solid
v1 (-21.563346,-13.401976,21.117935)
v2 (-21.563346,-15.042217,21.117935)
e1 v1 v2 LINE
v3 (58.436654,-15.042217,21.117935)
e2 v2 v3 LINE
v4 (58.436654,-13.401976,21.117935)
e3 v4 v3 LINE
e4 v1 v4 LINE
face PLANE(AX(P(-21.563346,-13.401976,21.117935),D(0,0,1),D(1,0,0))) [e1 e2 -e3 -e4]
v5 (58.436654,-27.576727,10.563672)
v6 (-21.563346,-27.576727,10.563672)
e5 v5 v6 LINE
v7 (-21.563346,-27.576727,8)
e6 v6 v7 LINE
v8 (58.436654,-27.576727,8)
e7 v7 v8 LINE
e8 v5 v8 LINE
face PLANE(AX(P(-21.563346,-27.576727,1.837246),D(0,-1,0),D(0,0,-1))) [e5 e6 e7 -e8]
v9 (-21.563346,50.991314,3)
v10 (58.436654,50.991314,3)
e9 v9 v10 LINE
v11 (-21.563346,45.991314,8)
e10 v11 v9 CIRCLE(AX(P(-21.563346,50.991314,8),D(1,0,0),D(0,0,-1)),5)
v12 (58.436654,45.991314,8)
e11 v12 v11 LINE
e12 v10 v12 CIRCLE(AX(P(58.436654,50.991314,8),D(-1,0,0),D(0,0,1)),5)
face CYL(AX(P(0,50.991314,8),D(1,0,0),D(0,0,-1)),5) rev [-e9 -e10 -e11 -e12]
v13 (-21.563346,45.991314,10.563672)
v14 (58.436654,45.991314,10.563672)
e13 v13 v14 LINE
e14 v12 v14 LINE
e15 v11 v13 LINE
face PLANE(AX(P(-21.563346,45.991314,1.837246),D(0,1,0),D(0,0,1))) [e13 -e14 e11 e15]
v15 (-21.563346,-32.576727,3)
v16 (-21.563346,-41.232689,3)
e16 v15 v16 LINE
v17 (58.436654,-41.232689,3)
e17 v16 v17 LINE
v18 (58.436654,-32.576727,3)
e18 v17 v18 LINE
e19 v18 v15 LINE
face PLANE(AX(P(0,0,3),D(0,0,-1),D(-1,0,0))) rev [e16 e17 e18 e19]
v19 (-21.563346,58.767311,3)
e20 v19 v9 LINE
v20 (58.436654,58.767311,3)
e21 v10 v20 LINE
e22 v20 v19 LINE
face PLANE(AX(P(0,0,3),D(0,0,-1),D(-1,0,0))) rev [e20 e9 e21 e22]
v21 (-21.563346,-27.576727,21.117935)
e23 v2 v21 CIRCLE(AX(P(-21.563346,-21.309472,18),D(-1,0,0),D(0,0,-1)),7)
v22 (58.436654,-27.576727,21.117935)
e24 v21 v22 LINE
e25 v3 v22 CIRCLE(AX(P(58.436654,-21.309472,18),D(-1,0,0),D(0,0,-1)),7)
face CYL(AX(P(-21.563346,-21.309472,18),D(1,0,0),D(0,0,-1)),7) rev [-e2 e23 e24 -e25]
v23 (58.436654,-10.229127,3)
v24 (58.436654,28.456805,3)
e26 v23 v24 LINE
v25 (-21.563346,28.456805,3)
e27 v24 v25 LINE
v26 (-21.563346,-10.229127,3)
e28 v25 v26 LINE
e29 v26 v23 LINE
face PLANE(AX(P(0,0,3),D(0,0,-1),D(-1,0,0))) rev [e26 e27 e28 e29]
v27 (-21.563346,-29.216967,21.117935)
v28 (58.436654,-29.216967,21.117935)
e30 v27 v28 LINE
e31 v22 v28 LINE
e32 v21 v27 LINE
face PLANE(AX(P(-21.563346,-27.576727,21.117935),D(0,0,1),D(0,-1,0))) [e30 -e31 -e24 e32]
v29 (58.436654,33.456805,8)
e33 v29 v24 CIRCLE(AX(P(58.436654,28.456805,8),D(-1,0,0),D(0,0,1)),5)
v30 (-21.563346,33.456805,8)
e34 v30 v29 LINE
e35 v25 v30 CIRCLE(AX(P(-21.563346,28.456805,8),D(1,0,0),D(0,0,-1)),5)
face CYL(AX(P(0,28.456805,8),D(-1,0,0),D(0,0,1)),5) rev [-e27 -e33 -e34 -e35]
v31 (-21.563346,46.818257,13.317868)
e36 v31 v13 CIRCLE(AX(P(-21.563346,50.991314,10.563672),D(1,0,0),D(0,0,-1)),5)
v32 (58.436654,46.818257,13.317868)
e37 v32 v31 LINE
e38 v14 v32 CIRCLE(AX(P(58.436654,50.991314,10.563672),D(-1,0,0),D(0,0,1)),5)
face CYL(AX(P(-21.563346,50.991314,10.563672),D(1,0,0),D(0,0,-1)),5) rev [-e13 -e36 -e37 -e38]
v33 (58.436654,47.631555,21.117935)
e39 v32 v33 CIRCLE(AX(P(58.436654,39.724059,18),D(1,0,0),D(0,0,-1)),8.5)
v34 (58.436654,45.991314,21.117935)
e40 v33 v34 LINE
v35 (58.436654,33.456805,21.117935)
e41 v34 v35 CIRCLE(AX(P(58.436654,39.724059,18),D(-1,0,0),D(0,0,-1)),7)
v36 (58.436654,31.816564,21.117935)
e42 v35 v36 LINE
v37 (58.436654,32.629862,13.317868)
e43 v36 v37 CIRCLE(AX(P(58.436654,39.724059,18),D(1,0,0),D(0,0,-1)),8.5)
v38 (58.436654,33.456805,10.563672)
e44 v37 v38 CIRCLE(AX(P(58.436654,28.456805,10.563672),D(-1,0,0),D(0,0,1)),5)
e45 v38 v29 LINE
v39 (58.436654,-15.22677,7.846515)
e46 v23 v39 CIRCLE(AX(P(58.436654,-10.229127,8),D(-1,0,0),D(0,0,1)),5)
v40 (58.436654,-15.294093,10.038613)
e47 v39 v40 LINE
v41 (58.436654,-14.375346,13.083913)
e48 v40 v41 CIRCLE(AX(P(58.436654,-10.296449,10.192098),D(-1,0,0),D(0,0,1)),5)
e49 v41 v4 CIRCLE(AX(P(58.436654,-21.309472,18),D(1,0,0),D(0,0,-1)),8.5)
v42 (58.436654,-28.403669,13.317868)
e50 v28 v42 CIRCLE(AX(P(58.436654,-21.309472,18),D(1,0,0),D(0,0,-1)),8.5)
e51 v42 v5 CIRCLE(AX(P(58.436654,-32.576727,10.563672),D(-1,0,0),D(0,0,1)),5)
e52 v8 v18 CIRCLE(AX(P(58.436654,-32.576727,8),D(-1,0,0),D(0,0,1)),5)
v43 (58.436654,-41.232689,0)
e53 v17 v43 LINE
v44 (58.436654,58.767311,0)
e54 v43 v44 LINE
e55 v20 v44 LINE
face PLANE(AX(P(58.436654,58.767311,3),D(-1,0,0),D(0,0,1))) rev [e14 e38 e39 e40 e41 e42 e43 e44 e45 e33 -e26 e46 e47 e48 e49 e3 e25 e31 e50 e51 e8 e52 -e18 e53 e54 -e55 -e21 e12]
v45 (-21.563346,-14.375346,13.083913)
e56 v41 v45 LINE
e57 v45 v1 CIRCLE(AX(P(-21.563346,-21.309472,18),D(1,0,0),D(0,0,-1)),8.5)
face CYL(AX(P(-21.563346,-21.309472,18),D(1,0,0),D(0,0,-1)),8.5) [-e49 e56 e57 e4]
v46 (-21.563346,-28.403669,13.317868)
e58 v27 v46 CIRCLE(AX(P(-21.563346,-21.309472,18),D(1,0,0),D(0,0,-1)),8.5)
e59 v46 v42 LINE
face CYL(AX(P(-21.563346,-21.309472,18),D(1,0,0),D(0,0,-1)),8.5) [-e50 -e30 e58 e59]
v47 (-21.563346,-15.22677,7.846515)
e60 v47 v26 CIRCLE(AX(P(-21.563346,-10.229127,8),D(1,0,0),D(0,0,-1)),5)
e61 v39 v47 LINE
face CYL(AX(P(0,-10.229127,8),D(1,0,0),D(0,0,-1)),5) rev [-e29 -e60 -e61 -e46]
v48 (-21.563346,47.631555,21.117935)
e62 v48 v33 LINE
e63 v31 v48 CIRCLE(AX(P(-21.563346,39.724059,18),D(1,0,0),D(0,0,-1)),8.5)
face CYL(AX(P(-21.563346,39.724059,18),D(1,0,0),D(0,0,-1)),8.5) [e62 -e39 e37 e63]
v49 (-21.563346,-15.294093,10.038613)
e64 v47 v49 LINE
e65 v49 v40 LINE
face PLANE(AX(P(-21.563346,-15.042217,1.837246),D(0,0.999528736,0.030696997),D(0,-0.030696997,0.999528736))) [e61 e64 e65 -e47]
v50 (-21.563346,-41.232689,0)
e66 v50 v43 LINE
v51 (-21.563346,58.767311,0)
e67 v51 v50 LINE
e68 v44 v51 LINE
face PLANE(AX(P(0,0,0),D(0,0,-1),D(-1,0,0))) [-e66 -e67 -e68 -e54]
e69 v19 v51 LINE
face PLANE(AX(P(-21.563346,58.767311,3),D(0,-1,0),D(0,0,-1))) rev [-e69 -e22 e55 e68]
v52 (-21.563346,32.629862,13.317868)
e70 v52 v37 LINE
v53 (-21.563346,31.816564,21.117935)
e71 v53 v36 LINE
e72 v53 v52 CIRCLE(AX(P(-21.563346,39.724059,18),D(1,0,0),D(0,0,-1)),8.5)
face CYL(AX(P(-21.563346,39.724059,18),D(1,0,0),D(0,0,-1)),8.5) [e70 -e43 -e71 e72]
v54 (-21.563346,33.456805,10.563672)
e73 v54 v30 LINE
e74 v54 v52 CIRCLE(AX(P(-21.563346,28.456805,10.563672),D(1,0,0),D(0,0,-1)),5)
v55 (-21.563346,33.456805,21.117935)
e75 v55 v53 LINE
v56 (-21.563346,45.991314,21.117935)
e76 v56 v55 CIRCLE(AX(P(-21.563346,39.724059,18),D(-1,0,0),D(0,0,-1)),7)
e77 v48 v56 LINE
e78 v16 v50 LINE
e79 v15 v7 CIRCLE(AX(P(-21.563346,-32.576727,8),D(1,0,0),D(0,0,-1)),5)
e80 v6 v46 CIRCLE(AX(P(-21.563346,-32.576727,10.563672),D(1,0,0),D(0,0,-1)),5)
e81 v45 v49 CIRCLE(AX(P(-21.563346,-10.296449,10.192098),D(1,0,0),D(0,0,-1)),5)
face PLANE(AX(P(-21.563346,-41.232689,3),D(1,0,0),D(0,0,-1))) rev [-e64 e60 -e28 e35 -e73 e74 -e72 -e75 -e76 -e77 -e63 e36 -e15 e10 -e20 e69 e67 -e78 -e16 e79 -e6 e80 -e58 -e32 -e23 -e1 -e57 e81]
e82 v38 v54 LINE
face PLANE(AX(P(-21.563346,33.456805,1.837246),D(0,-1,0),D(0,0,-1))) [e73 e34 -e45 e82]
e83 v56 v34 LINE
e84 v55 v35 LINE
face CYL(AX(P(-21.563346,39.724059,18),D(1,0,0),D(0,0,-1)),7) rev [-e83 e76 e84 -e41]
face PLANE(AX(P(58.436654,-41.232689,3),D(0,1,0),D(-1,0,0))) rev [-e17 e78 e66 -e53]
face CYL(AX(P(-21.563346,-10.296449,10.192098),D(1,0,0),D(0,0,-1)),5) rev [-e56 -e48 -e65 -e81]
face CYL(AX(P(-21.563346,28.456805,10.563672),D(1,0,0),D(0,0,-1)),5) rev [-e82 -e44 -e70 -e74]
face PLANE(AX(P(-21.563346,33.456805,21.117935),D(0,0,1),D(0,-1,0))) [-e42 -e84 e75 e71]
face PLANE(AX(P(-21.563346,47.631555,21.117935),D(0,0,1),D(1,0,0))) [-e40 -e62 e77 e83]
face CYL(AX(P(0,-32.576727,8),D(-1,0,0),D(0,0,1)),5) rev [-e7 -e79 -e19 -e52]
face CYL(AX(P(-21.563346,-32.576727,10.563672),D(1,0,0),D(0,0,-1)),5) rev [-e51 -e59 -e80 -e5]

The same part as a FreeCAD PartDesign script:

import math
import FreeCAD as App
import Part
import Sketcher
from FreeCAD import Vector
Q = App.Units.Quantity


def edges_at(feature, points):
    """Names of the edges that pass closest to the given points."""
    edges = feature.Shape.Edges
    near = lambda p: min(range(len(edges)), key=lambda i: edges[i].distToShape(Part.Vertex(*p))[0])
    return sorted({f"Edge{near(p) + 1}" for p in points})


def add_polygon(sketch, points):
    """Adds a closed chain of lines whose ends are joined by coincident constraints."""
    first, n = sketch.GeometryCount, len(points)
    for a, b in zip(points, points[1:] + points[:1]):
        sketch.addGeometry(Part.LineSegment(App.Vector(*a, 0), App.Vector(*b, 0)), False)
    for i in range(n):
        sketch.addConstraint(Sketcher.Constraint("Coincident", first + i, 2, first + (i + 1) % n, 1))

doc = App.newDocument("Part")
body = doc.addObject("PartDesign::Body", "Body")

sketch1 = doc.addObject("Sketcher::SketchObject", "Sketch")
body.addObject(sketch1)
sketch1.AttachmentSupport = (doc.XY_Plane, [""])
sketch1.MapMode = "FlatFace"
add_polygon(sketch1, [(-22, 59), (-22, -41), (58, -41), (58, 59)])
sketch1.addConstraint([
    Sketcher.Constraint("Vertical", 0),
    Sketcher.Constraint("Horizontal", 1),
    Sketcher.Constraint("Vertical", 2),
    Sketcher.Constraint("Horizontal", 3),
    Sketcher.Constraint("DistanceX", 1, 1, 1, 2, Q("80 mm")),
    Sketcher.Constraint("DistanceY", 0, 2, 0, 1, Q("100 mm")),
    Sketcher.Constraint("DistanceY", 0, 2, -1, 1, Q("41.232689 mm")),
    Sketcher.Constraint("DistanceX", 0, 2, -1, 1, Q("21.563346 mm")),
])
pad1 = doc.addObject("PartDesign::Pad", "Pad")
body.addObject(pad1)
pad1.Profile = sketch1
pad1.Length = 3

sketch2 = doc.addObject("Sketcher::SketchObject", "Sketch001")
body.addObject(sketch2)
sketch2.AttachmentSupport = (doc.YZ_Plane, [""])
sketch2.MapMode = "FlatFace"
sketch2.AttachmentOffset = App.Placement(Vector(0, 0, 58.436654), App.Rotation())
sketch2.addGeometry([
    Part.LineSegment(Vector(46, 1.8, 0), Vector(46, 12.3, 0)),
    Part.ArcOfCircle(Part.Circle(Vector(39.7, 18, 0), Vector(0, 0, 1), 8.5), math.radians(-42), math.radians(22)),
    Part.LineSegment(Vector(47.6, 21.1, 0), Vector(46, 21.1, 0)),
    Part.ArcOfCircle(Part.Circle(Vector(39.7, 18, 0), Vector(0, 0, 1), 7), math.radians(154), math.radians(386)),
    Part.LineSegment(Vector(33.5, 21.1, 0), Vector(31.8, 21.1, 0)),
    Part.ArcOfCircle(Part.Circle(Vector(39.7, 18, 0), Vector(0, 0, 1), 8.5), math.radians(158), math.radians(222)),
    Part.LineSegment(Vector(33.5, 12.3, 0), Vector(33.5, 1.8, 0)),
    Part.LineSegment(Vector(33.5, 1.8, 0), Vector(46, 1.8, 0)),
    Part.LineSegment(Vector(-13.4, 21.1, 0), Vector(-15, 21.1, 0)),
    Part.ArcOfCircle(Part.Circle(Vector(-21.3, 18, 0), Vector(0, 0, 1), 7), math.radians(154), math.radians(386)),
    Part.LineSegment(Vector(-27.6, 21.1, 0), Vector(-29.2, 21.1, 0)),
    Part.ArcOfCircle(Part.Circle(Vector(-21.3, 18, 0), Vector(0, 0, 1), 8.5), math.radians(158), math.radians(222)),
    Part.LineSegment(Vector(-27.6, 12.3, 0), Vector(-27.6, 1.8, 0)),
    Part.LineSegment(Vector(-27.6, 1.8, 0), Vector(-15, 1.8, 0)),
    Part.LineSegment(Vector(-15, 1.8, 0), Vector(-15.4, 11.9, 0)),
    Part.ArcOfCircle(Part.Circle(Vector(-21.3, 18, 0), Vector(0, 0, 1), 8.5), math.radians(-46), math.radians(22)),
], False)
sketch2.addConstraint([
    Sketcher.Constraint("Coincident", 0, 2, 1, 1),
    Sketcher.Constraint("Coincident", 1, 2, 2, 1),
    Sketcher.Constraint("Coincident", 2, 2, 3, 2),
    Sketcher.Constraint("Coincident", 3, 1, 4, 1),
    Sketcher.Constraint("Coincident", 4, 2, 5, 1),
    Sketcher.Constraint("Coincident", 5, 2, 6, 1),
    Sketcher.Constraint("Coincident", 6, 2, 7, 1),
    Sketcher.Constraint("Coincident", 7, 2, 0, 1),
    Sketcher.Constraint("Coincident", 8, 2, 9, 2),
    Sketcher.Constraint("Coincident", 9, 1, 10, 1),
    Sketcher.Constraint("Coincident", 10, 2, 11, 1),
    Sketcher.Constraint("Coincident", 11, 2, 12, 1),
    Sketcher.Constraint("Coincident", 12, 2, 13, 1),
    Sketcher.Constraint("Coincident", 13, 2, 14, 1),
    Sketcher.Constraint("Coincident", 14, 2, 15, 1),
    Sketcher.Constraint("Coincident", 15, 2, 8, 1),
    Sketcher.Constraint("Vertical", 0),
    Sketcher.Constraint("Horizontal", 2),
    Sketcher.Constraint("Horizontal", 4),
    Sketcher.Constraint("Vertical", 6),
    Sketcher.Constraint("Horizontal", 7),
    Sketcher.Constraint("Horizontal", 8),
    Sketcher.Constraint("Horizontal", 10),
    Sketcher.Constraint("Vertical", 12),
    Sketcher.Constraint("Horizontal", 13),
    Sketcher.Constraint("Coincident", 3, 3, 1, 3),
    Sketcher.Constraint("Coincident", 5, 3, 1, 3),
    Sketcher.Constraint("Coincident", 11, 3, 9, 3),
    Sketcher.Constraint("Coincident", 15, 3, 9, 3),
    Sketcher.Constraint("Equal", 1, 5),
    Sketcher.Constraint("Equal", 3, 9),
    Sketcher.Constraint("Equal", 5, 11),
    Sketcher.Constraint("Equal", 11, 15),
    Sketcher.Constraint("Horizontal", 5, 3, 9, 3),
    Sketcher.Constraint("Horizontal", 2, 2, 3, 1),
    Sketcher.Constraint("Horizontal", 0, 2, 5, 2),
    Sketcher.Constraint("Horizontal", 4, 2, 8, 2),
    Sketcher.Constraint("Horizontal", 8, 2, 9, 1),
    Sketcher.Constraint("Horizontal", 5, 2, 11, 2),
    Sketcher.Constraint("Horizontal", 7, 2, 12, 2),
    Sketcher.Constraint("Vertical", 0, 2, 2, 2),
    Sketcher.Constraint("Vertical", 8, 2, 13, 2),
    Sketcher.Constraint("Radius", 3, Q("7 mm")),
    Sketcher.Constraint("Radius", 1, Q("8.5 mm")),
    Sketcher.Constraint("DistanceY", -1, 1, 1, 3, Q("18 mm")),
    Sketcher.Constraint("DistanceX", 2, 2, 2, 1, Q("1.640241 mm")),
    Sketcher.Constraint("DistanceY", 0, 1, 0, 2, Q("10.420671 mm")),
    Sketcher.Constraint("DistanceX", -1, 1, 1, 3, Q("39.724059 mm")),
    Sketcher.Constraint("DistanceX", 9, 3, -1, 1, Q("21.309472 mm")),
    Sketcher.Constraint("DistanceY", -1, 1, 14, 2, Q("11.936738 mm")),
])
pad2 = doc.addObject("PartDesign::Pad", "Pad001")
body.addObject(pad2)
pad2.Profile = sketch2
pad2.Length = 80
pad2.Reversed = True
doc.recompute()

fillet = doc.addObject("PartDesign::Fillet", "Fillet")
body.addObject(fillet)
fillet.Base = (pad2, edges_at(pad2, [
    (18.437, 45.991, 12.258),
    (18.437, 33.457, 12.258),
    (18.437, -15.352, 11.937),
    (18.437, -27.577, 12.258),
]))
fillet.Radius = 5
doc.recompute()

fillet2 = doc.addObject("PartDesign::Fillet", "Fillet001")
body.addObject(fillet2)
fillet2.Base = (fillet, edges_at(fillet, [
    (18.437, 33.457, 3),
    (18.437, 45.991, 3),
    (18.437, -27.577, 3),
    (18.437, -15.078, 3),
]))
fillet2.Radius = 5

doc.recompute()
